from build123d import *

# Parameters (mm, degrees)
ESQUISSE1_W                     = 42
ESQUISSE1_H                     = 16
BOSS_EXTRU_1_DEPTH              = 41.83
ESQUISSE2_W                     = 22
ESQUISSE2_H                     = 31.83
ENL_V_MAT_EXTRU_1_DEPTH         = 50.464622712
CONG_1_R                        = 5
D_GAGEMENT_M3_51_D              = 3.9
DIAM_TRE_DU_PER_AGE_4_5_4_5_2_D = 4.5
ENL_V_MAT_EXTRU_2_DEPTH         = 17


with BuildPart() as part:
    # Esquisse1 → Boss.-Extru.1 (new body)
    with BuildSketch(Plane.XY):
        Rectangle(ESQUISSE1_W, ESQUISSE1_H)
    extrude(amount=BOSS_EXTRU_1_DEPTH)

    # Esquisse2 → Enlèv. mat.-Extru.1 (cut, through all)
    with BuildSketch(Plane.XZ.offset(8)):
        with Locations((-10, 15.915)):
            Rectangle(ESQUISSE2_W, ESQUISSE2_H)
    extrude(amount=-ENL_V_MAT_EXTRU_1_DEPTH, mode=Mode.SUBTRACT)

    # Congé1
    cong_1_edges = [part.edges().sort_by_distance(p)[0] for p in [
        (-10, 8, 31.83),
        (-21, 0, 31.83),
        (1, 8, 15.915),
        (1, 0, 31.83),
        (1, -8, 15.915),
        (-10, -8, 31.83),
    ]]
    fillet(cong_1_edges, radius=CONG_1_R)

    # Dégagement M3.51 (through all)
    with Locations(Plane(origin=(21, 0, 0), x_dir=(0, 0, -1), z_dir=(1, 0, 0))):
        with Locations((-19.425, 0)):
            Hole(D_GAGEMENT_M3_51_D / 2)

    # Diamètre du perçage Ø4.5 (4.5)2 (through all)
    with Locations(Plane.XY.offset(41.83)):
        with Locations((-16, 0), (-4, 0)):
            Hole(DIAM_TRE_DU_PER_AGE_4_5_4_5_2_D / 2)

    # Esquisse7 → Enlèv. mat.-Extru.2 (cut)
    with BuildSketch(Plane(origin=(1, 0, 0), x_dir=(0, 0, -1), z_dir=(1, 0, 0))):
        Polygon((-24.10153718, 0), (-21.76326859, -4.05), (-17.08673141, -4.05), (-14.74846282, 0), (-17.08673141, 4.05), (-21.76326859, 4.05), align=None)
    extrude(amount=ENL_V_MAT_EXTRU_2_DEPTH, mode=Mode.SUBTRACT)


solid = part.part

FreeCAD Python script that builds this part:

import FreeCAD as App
import Part
import Sketcher
Q = App.Units.Quantity


def edges_at(feature, points):
    """Names of the edges that pass closest to the given points."""
    edges = feature.Shape.Edges
    near = lambda p: min(range(len(edges)), key=lambda i: edges[i].distToShape(Part.Vertex(*p))[0])
    return sorted({f"Edge{near(p) + 1}" for p in points})

doc = App.newDocument("Part")
body = doc.addObject("PartDesign::Body", "Body")

sketch1 = body.newObject("Sketcher::SketchObject", "Sketch")
sketch1.AttachmentSupport = (doc.getObject("XY_Plane"), [""])
sketch1.MapMode = "FlatFace"
sketch1.addGeometry([
    Part.LineSegment(App.Vector(-21, 8, 0), App.Vector(-21, -8, 0)),
    Part.LineSegment(App.Vector(-21, -8, 0), App.Vector(21, -8, 0)),
    Part.LineSegment(App.Vector(21, -8, 0), App.Vector(21, 8, 0)),
    Part.LineSegment(App.Vector(21, 8, 0), App.Vector(-21, 8, 0)),
], False)
sketch1.addConstraint([
    Sketcher.Constraint("Coincident", 0, 2, 1, 1),
    Sketcher.Constraint("Coincident", 1, 2, 2, 1),
    Sketcher.Constraint("Coincident", 2, 2, 3, 1),
    Sketcher.Constraint("Coincident", 3, 2, 0, 1),
    Sketcher.Constraint("Vertical", 0),
    Sketcher.Constraint("Horizontal", 1),
    Sketcher.Constraint("Vertical", 2),
    Sketcher.Constraint("Horizontal", 3),
    Sketcher.Constraint("Symmetric", 0, 2, 2, 2, -1, 1),
    Sketcher.Constraint("DistanceX", 1, 1, 1, 2, Q("42 mm")),
    Sketcher.Constraint("DistanceY", 0, 2, 0, 1, Q("16 mm")),
])
pad1 = body.newObject("PartDesign::Pad", "Pad")
pad1.Profile = sketch1
pad1.Length = 41.83

sketch2 = body.newObject("Sketcher::SketchObject", "Sketch001")
sketch2.AttachmentSupport = (doc.getObject("XZ_Plane"), [""])
sketch2.MapMode = "FlatFace"
sketch2.AttachmentOffset = App.Placement(App.Vector(0, 0, 8), App.Rotation())
sketch2.addGeometry([
    Part.LineSegment(App.Vector(-21, 32, 0), App.Vector(-21, 0, 0)),
    Part.LineSegment(App.Vector(-21, 0, 0), App.Vector(1, 0, 0)),
    Part.LineSegment(App.Vector(1, 0, 0), App.Vector(1, 32, 0)),
    Part.LineSegment(App.Vector(1, 32, 0), App.Vector(-21, 32, 0)),
], False)
sketch2.addConstraint([
    Sketcher.Constraint("Coincident", 0, 2, 1, 1),
    Sketcher.Constraint("Coincident", 1, 2, 2, 1),
    Sketcher.Constraint("Coincident", 2, 2, 3, 1),
    Sketcher.Constraint("Coincident", 3, 2, 0, 1),
    Sketcher.Constraint("Vertical", 0),
    Sketcher.Constraint("Horizontal", 1),
    Sketcher.Constraint("Vertical", 2),
    Sketcher.Constraint("Horizontal", 3),
    Sketcher.Constraint("PointOnObject", 0, 2, -1),
    Sketcher.Constraint("DistanceX", 1, 1, 1, 2, Q("22 mm")),
    Sketcher.Constraint("DistanceX", 0, 2, -1, 1, Q("21 mm")),
    Sketcher.Constraint("DistanceY", 0, 2, 0, 1, Q("31.83 mm")),
])
pocket1 = body.newObject("PartDesign::Pocket", "Pocket")
pocket1.Profile = sketch2
pocket1.Type = "ThroughAll"
doc.recompute()

fillet = body.newObject("PartDesign::Fillet", "Fillet")
fillet.Base = (pocket1, edges_at(pocket1, [
    (-10, 8, 31.83),
    (-21, 0, 31.83),
    (1, 8, 15.915),
    (1, 0, 31.83),
    (1, -8, 15.915),
    (-10, -8, 31.83),
]))
fillet.Radius = 5

sketch3 = body.newObject("Sketcher::SketchObject", "Sketch002")
sketch3.AttachmentSupport = (doc.getObject("YZ_Plane"), [""])
sketch3.MapMode = "FlatFace"
sketch3.AttachmentOffset = App.Placement(App.Vector(0, 0, 21), App.Rotation())
sketch3.addGeometry(Part.Circle(App.Vector(0, 19.4, 0), App.Vector(0, 0, 1), 1.9), False)
sketch3.addConstraint([
    Sketcher.Constraint("PointOnObject", 0, 3, -2),
    Sketcher.Constraint("Diameter", 0, Q("3.9 mm")),
    Sketcher.Constraint("DistanceY", -1, 1, 0, 3, Q("19.425 mm")),
])
doc.recompute()
hole = body.newObject("PartDesign::Hole", "Hole")
hole.Profile = sketch3
hole.ThreadType = "None"
hole.Diameter = 3.9
hole.DepthType = "ThroughAll"

sketch4 = body.newObject("Sketcher::SketchObject", "Sketch003")
sketch4.AttachmentSupport = (doc.getObject("XY_Plane"), [""])
sketch4.MapMode = "FlatFace"
sketch4.AttachmentOffset = App.Placement(App.Vector(0, 0, 41.83), App.Rotation())
sketch4.addGeometry([
    Part.Circle(App.Vector(-16, 0, 0), App.Vector(0, 0, 1), 2.2),
    Part.Circle(App.Vector(-4, 0, 0), App.Vector(0, 0, 1), 2.2),
], False)
sketch4.addConstraint([
    Sketcher.Constraint("Equal", 0, 1),
    Sketcher.Constraint("PointOnObject", 0, 3, -1),
    Sketcher.Constraint("PointOnObject", 1, 3, -1),
    Sketcher.Constraint("Diameter", 0, Q("4.5 mm")),
    Sketcher.Constraint("DistanceX", 0, 3, -1, 1, Q("16 mm")),
    Sketcher.Constraint("DistanceX", 1, 3, -1, 1, Q("4 mm")),
])
doc.recompute()
hole2 = body.newObject("PartDesign::Hole", "Hole001")
hole2.Profile = sketch4
hole2.ThreadType = "None"
hole2.Diameter = 4.5
hole2.DepthType = "ThroughAll"

sketch5 = body.newObject("Sketcher::SketchObject", "Sketch004")
sketch5.AttachmentSupport = (doc.getObject("YZ_Plane"), [""])
sketch5.MapMode = "FlatFace"
sketch5.AttachmentOffset = App.Placement(App.Vector(0, 0, 1), App.Rotation())
sketch5.addGeometry([
    Part.LineSegment(App.Vector(0, 24.1, 0), App.Vector(-4, 21.8, 0)),
    Part.LineSegment(App.Vector(-4, 21.8, 0), App.Vector(-4, 17.1, 0)),
    Part.LineSegment(App.Vector(-4, 17.1, 0), App.Vector(0, 14.7, 0)),
    Part.LineSegment(App.Vector(0, 14.7, 0), App.Vector(4, 17.1, 0)),
    Part.LineSegment(App.Vector(4, 17.1, 0), App.Vector(4, 21.8, 0)),
    Part.LineSegment(App.Vector(4, 21.8, 0), App.Vector(0, 24.1, 0)),
], False)
sketch5.addConstraint([
    Sketcher.Constraint("Coincident", 0, 2, 1, 1),
    Sketcher.Constraint("Coincident", 1, 2, 2, 1),
    Sketcher.Constraint("Coincident", 2, 2, 3, 1),
    Sketcher.Constraint("Coincident", 3, 2, 4, 1),
    Sketcher.Constraint("Coincident", 4, 2, 5, 1),
    Sketcher.Constraint("Coincident", 5, 2, 0, 1),
    Sketcher.Constraint("Vertical", 1),
    Sketcher.Constraint("Vertical", 4),
    Sketcher.Constraint("Symmetric", 1, 2, 3, 2, -2),
    Sketcher.Constraint("PointOnObject", 2, 2, -2),
    Sketcher.Constraint("PointOnObject", 5, 2, -2),
    Sketcher.Constraint("Parallel", 0, 3),
    Sketcher.Constraint("Parallel", 2, 5),
    Sketcher.Constraint("Angle", 0, Q("-150 deg")),
    Sketcher.Constraint("DistanceX", 1, 2, 3, 2, Q("8.1 mm")),
    Sketcher.Constraint("DistanceY", 1, 2, 1, 1, Q("4.676537 mm")),
    Sketcher.Constraint("DistanceY", -1, 1, 0, 2, Q("21.763269 mm")),
])
pocket2 = body.newObject("PartDesign::Pocket", "Pocket001")
pocket2.Profile = sketch5
pocket2.Length = 17
pocket2.Reversed = True

doc.recompute()
